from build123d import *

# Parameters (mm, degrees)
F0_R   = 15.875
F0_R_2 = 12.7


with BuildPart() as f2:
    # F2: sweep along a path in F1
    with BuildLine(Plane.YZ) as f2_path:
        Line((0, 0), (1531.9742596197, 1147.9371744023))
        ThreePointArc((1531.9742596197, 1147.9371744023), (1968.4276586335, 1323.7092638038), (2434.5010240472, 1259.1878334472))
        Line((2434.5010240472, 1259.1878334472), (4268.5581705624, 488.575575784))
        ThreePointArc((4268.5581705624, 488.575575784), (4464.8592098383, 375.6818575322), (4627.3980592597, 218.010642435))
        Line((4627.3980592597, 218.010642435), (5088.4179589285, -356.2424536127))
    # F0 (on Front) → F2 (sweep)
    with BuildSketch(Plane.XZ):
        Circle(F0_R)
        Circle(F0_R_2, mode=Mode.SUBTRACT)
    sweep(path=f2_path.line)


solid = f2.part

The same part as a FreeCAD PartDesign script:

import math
import FreeCAD as App
import Part
import Sketcher

V = App.Vector
Q = App.Units.Quantity

doc = App.newDocument("Part")
body = doc.addObject("PartDesign::Body", "Body")

# Sketch on XZ plane
sketch1 = body.newObject("Sketcher::SketchObject", "Sketch")
sketch1.AttachmentSupport = (doc.getObject("XZ_Plane"), [""])
sketch1.MapMode = "FlatFace"
sketch1.addGeometry(Part.Circle(V(0, 0, 0), V(0, 0, 1), 16), False)
sketch1.addGeometry(Part.Circle(V(0, 0, 0), V(0, 0, 1), 13), False)
sketch1.addConstraint(Sketcher.Constraint("Coincident", 0, 3, -1, 1))
sketch1.addConstraint(Sketcher.Constraint("Coincident", 1, 3, -1, 1))
sketch1.addConstraint(Sketcher.Constraint("Diameter", 1, Q("1 in")))
sketch1.addConstraint(Sketcher.Constraint("Diameter", 0, Q("1.25 in")))

# Sketch on YZ plane
sketch2 = body.newObject("Sketcher::SketchObject", "Sketch001")
sketch2.AttachmentSupport = (doc.getObject("YZ_Plane"), [""])
sketch2.MapMode = "FlatFace"
sketch2.addGeometry(Part.LineSegment(V(0, 0, 0), V(1532, 1148, 0)), False)
sketch2.addGeometry(Part.ArcOfCircle(Part.Circle(V(2080, 416, 0), V(0, 0, 1), 914), math.radians(67), math.radians(127)), False)
sketch2.addGeometry(Part.LineSegment(V(2435, 1259, 0), V(4269, 489, 0)), False)
sketch2.addGeometry(Part.ArcOfCircle(Part.Circle(V(3914, -354, 0), V(0, 0, 1), 914), math.radians(39), math.radians(67)), False)
sketch2.addGeometry(Part.LineSegment(V(4627, 218, 0), V(5088, -356, 0)), False)
sketch2.addConstraint(Sketcher.Constraint("Coincident", 0, 2, 1, 2))
sketch2.addConstraint(Sketcher.Constraint("Coincident", 1, 1, 2, 1))
sketch2.addConstraint(Sketcher.Constraint("Coincident", 2, 2, 3, 2))
sketch2.addConstraint(Sketcher.Constraint("Tangent", 3, 1, 4, 1))
sketch2.addConstraint(Sketcher.Constraint("Coincident", 0, 1, -1, 1))
sketch2.addConstraint(Sketcher.Constraint("Equal", 1, 3))
sketch2.addConstraint(Sketcher.Constraint("Radius", 1, Q("36 in")))
sketch2.addConstraint(Sketcher.Constraint("DistanceY", 3, 3, 1, 1, Q("1613.622101 mm")))
sketch2.addConstraint(Sketcher.Constraint("DistanceY", 2, 2, 0, 2, Q("659.361599 mm")))
sketch2.addConstraint(Sketcher.Constraint("DistanceX", 3, 1, 4, 2, Q("461.0199 mm")))
sketch2.addConstraint(Sketcher.Constraint("Distance", 2, Q("1989.373989 mm")))
sketch2.addConstraint(Sketcher.Constraint("DistanceY", -1, 1, 1, 3, Q("416.17799 mm")))
sketch2.addConstraint(Sketcher.Constraint("DistanceX", -1, 1, 3, 3, Q("3914.352349 mm")))
sketch2.addConstraint(Sketcher.Constraint("DistanceX", -1, 1, 0, 2, Q("1531.97426 mm")))
sketch2.addConstraint(Sketcher.Constraint("DistanceX", -1, 1, 2, 2, Q("4268.558171 mm")))
sketch2.addConstraint(Sketcher.Constraint("DistanceX", -1, 1, 4, 2, Q("5088.417959 mm")))
doc.recompute()

additivepipe = body.newObject("PartDesign::AdditivePipe", "AdditivePipe")
additivepipe.Profile = sketch1
additivepipe.Spine = (sketch2, ["Edge1", "Edge2", "Edge3", "Edge4", "Edge5"])

doc.recompute()
